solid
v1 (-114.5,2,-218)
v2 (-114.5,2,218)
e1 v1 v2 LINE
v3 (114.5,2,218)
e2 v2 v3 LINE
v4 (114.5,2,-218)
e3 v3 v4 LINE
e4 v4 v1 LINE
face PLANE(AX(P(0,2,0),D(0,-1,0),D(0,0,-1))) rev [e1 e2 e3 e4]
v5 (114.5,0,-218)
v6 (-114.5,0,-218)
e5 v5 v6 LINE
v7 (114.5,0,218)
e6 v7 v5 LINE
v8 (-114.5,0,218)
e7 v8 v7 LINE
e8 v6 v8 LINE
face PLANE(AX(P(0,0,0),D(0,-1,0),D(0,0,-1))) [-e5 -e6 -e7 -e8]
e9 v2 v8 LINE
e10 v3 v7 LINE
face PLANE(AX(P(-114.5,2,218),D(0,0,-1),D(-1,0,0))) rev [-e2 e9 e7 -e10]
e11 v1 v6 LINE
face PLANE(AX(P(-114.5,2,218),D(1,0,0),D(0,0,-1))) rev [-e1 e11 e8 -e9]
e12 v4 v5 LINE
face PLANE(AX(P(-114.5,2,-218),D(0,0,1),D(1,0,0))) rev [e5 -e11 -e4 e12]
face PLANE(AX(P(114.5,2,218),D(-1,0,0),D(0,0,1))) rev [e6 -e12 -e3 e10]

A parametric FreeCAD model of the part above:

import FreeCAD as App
import Part
import Sketcher

doc = App.newDocument("Part")
body = doc.addObject("PartDesign::Body", "Body")

# Sketch on XZ plane
sketch1 = body.newObject("Sketcher::SketchObject", "Sketch")
sketch1.AttachmentSupport = (doc.getObject("XZ_Plane"), [""])
sketch1.MapMode = "FlatFace"
sketch1.addGeometry([
    Part.LineSegment(App.Vector(-114, -218, 0), App.Vector(-114, 218, 0)),
    Part.LineSegment(App.Vector(-114, 218, 0), App.Vector(114, 218, 0)),
    Part.LineSegment(App.Vector(114, 218, 0), App.Vector(114, -218, 0)),
    Part.LineSegment(App.Vector(114, -218, 0), App.Vector(-114, -218, 0)),
], False)
sketch1.addConstraint([
    Sketcher.Constraint("Coincident", 0, 2, 1, 1),
    Sketcher.Constraint("Coincident", 1, 2, 2, 1),
    Sketcher.Constraint("Coincident", 2, 2, 3, 1),
    Sketcher.Constraint("Coincident", 3, 2, 0, 1),
    Sketcher.Constraint("Vertical", 0),
    Sketcher.Constraint("Horizontal", 1),
    Sketcher.Constraint("Vertical", 2),
    Sketcher.Constraint("Horizontal", 3),
    Sketcher.Constraint("Symmetric", 0, 2, 2, 2, -1, 1),
    Sketcher.Constraint("DistanceX", 1, 1, 1, 2, 229.0),
    Sketcher.Constraint("DistanceY", 0, 1, 0, 2, 436.0),
])
pad1 = body.newObject("PartDesign::Pad", "Pad")
pad1.Profile = sketch1
pad1.Length = 2
pad1.Reversed = True

doc.recompute()
